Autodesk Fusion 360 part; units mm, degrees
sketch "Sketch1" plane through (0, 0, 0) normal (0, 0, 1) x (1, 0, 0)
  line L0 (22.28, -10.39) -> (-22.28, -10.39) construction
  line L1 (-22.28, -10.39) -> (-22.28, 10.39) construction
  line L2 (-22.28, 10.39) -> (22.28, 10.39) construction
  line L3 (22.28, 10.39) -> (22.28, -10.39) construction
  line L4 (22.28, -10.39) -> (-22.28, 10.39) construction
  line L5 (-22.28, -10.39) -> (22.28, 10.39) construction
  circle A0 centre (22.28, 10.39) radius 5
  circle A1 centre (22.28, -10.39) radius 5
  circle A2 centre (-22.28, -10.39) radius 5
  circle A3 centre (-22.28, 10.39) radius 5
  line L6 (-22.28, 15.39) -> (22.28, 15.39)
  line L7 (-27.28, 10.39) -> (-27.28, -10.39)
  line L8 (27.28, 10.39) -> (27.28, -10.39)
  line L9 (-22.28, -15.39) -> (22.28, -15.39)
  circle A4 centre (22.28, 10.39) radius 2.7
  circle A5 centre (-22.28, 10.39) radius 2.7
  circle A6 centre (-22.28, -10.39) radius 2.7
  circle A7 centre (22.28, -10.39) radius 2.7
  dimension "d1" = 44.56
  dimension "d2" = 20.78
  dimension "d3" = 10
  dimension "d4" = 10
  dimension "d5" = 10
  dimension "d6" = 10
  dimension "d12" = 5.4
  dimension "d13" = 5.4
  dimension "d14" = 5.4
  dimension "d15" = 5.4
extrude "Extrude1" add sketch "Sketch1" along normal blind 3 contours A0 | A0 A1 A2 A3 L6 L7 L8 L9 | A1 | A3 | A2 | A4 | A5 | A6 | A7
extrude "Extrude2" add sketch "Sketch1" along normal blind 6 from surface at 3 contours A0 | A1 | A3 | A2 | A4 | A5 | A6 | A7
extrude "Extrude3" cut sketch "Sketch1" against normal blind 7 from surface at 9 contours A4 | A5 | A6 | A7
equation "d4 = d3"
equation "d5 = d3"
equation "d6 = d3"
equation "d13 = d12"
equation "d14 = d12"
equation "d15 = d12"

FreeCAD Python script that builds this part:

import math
import FreeCAD as App
import Part
import Sketcher

V = App.Vector
Q = App.Units.Quantity

doc = App.newDocument("Part")
body = doc.addObject("PartDesign::Body", "Body")

# Sketch on XY plane
sketch1 = body.newObject("Sketcher::SketchObject", "Sketch")
sketch1.AttachmentSupport = (doc.getObject("XY_Plane"), [""])
sketch1.MapMode = "FlatFace"
sketch1.addGeometry(Part.ArcOfCircle(Part.Circle(V(22, 10, 0), V(0, 0, 1), 5), math.radians(0), math.radians(90)), False)
sketch1.addGeometry(Part.LineSegment(V(22, 15, 0), V(-22, 15, 0)), False)
sketch1.addGeometry(Part.ArcOfCircle(Part.Circle(V(-22, 10, 0), V(0, 0, 1), 5), math.radians(90), math.radians(180)), False)
sketch1.addGeometry(Part.LineSegment(V(-27, 10, 0), V(-27, -10, 0)), False)
sketch1.addGeometry(Part.ArcOfCircle(Part.Circle(V(-22, -10, 0), V(0, 0, 1), 5), math.radians(180), math.radians(270)), False)
sketch1.addGeometry(Part.LineSegment(V(-22, -15, 0), V(22, -15, 0)), False)
sketch1.addGeometry(Part.ArcOfCircle(Part.Circle(V(22, -10, 0), V(0, 0, 1), 5), math.radians(-90), math.radians(0)), False)
sketch1.addGeometry(Part.LineSegment(V(27, -10, 0), V(27, 10, 0)), False)
sketch1.addConstraint(Sketcher.Constraint("Tangent", 0, 2, 1, 1))
sketch1.addConstraint(Sketcher.Constraint("Tangent", 1, 2, 2, 1))
sketch1.addConstraint(Sketcher.Constraint("Tangent", 2, 2, 3, 1))
sketch1.addConstraint(Sketcher.Constraint("Tangent", 3, 2, 4, 1))
sketch1.addConstraint(Sketcher.Constraint("Tangent", 4, 2, 5, 1))
sketch1.addConstraint(Sketcher.Constraint("Tangent", 5, 2, 6, 1))
sketch1.addConstraint(Sketcher.Constraint("Tangent", 6, 2, 7, 1))
sketch1.addConstraint(Sketcher.Constraint("Tangent", 7, 2, 0, 1))
sketch1.addConstraint(Sketcher.Constraint("Horizontal", 1))
sketch1.addConstraint(Sketcher.Constraint("Vertical", 3))
sketch1.addConstraint(Sketcher.Constraint("Horizontal", 5))
sketch1.addConstraint(Sketcher.Constraint("Vertical", 7))
sketch1.addConstraint(Sketcher.Constraint("Equal", 0, 2))
sketch1.addConstraint(Sketcher.Constraint("Equal", 2, 4))
sketch1.addConstraint(Sketcher.Constraint("Equal", 4, 6))
sketch1.addConstraint(Sketcher.Constraint("Symmetric", 0, 3, 4, 3, -1, 1))
sketch1.addConstraint(Sketcher.Constraint("Radius", 0, Q("5 mm")))
sketch1.addConstraint(Sketcher.Constraint("DistanceX", 1, 2, 1, 1, Q("44.56 mm")))
sketch1.addConstraint(Sketcher.Constraint("DistanceY", 3, 2, 3, 1, Q("20.78 mm")))
pad1 = body.newObject("PartDesign::Pad", "Pad")
pad1.Profile = sketch1
pad1.Length = 3

# Sketch on XY plane
sketch2 = body.newObject("Sketcher::SketchObject", "Sketch001")
sketch2.AttachmentSupport = (doc.getObject("XY_Plane"), [""])
sketch2.MapMode = "FlatFace"
sketch2.AttachmentOffset = App.Placement(V(0, 0, 3), App.Rotation())
sketch2.addGeometry(Part.Circle(V(22, 10, 0), V(0, 0, 1), 5), False)
sketch2.addGeometry(Part.Circle(V(22, -10, 0), V(0, 0, 1), 5), False)
sketch2.addGeometry(Part.Circle(V(-22, 10, 0), V(0, 0, 1), 5), False)
sketch2.addGeometry(Part.Circle(V(-22, -10, 0), V(0, 0, 1), 5), False)
sketch2.addConstraint(Sketcher.Constraint("Equal", 0, 1))
sketch2.addConstraint(Sketcher.Constraint("Equal", 1, 2))
sketch2.addConstraint(Sketcher.Constraint("Equal", 2, 3))
sketch2.addConstraint(Sketcher.Constraint("Symmetric", 1, 3, 2, 3, -1, 1))
sketch2.addConstraint(Sketcher.Constraint("Symmetric", 0, 3, 3, 3, -1, 1))
sketch2.addConstraint(Sketcher.Constraint("Symmetric", 0, 3, 2, 3, -2))
sketch2.addConstraint(Sketcher.Constraint("Diameter", 0, Q("10 mm")))
sketch2.addConstraint(Sketcher.Constraint("DistanceY", 1, 3, 0, 3, Q("20.78 mm")))
sketch2.addConstraint(Sketcher.Constraint("DistanceX", 2, 3, 0, 3, Q("44.56 mm")))
pad2 = body.newObject("PartDesign::Pad", "Pad001")
pad2.Profile = sketch2
pad2.Length = 6

# Sketch on XY plane
sketch3 = body.newObject("Sketcher::SketchObject", "Sketch002")
sketch3.AttachmentSupport = (doc.getObject("XY_Plane"), [""])
sketch3.MapMode = "FlatFace"
sketch3.AttachmentOffset = App.Placement(V(0, 0, 9), App.Rotation())
sketch3.addGeometry(Part.Circle(V(22.3, 10.4, 0), V(0, 0, 1), 2.7), False)
sketch3.addGeometry(Part.Circle(V(-22.3, 10.4, 0), V(0, 0, 1), 2.7), False)
sketch3.addGeometry(Part.Circle(V(-22.3, -10.4, 0), V(0, 0, 1), 2.7), False)
sketch3.addGeometry(Part.Circle(V(22.3, -10.4, 0), V(0, 0, 1), 2.7), False)
sketch3.addConstraint(Sketcher.Constraint("Equal", 0, 1))
sketch3.addConstraint(Sketcher.Constraint("Equal", 1, 2))
sketch3.addConstraint(Sketcher.Constraint("Equal", 2, 3))
sketch3.addConstraint(Sketcher.Constraint("Symmetric", 0, 3, 2, 3, -1, 1))
sketch3.addConstraint(Sketcher.Constraint("Symmetric", 1, 3, 3, 3, -1, 1))
sketch3.addConstraint(Sketcher.Constraint("Symmetric", 0, 3, 1, 3, -2))
sketch3.addConstraint(Sketcher.Constraint("Diameter", 0, Q("5.4 mm")))
sketch3.addConstraint(Sketcher.Constraint("DistanceX", 1, 3, 0, 3, Q("44.56 mm")))
sketch3.addConstraint(Sketcher.Constraint("DistanceY", 2, 3, 1, 3, Q("20.78 mm")))
pocket1 = body.newObject("PartDesign::Pocket", "Pocket")
pocket1.Profile = sketch3
pocket1.Length = 7

doc.recompute()
